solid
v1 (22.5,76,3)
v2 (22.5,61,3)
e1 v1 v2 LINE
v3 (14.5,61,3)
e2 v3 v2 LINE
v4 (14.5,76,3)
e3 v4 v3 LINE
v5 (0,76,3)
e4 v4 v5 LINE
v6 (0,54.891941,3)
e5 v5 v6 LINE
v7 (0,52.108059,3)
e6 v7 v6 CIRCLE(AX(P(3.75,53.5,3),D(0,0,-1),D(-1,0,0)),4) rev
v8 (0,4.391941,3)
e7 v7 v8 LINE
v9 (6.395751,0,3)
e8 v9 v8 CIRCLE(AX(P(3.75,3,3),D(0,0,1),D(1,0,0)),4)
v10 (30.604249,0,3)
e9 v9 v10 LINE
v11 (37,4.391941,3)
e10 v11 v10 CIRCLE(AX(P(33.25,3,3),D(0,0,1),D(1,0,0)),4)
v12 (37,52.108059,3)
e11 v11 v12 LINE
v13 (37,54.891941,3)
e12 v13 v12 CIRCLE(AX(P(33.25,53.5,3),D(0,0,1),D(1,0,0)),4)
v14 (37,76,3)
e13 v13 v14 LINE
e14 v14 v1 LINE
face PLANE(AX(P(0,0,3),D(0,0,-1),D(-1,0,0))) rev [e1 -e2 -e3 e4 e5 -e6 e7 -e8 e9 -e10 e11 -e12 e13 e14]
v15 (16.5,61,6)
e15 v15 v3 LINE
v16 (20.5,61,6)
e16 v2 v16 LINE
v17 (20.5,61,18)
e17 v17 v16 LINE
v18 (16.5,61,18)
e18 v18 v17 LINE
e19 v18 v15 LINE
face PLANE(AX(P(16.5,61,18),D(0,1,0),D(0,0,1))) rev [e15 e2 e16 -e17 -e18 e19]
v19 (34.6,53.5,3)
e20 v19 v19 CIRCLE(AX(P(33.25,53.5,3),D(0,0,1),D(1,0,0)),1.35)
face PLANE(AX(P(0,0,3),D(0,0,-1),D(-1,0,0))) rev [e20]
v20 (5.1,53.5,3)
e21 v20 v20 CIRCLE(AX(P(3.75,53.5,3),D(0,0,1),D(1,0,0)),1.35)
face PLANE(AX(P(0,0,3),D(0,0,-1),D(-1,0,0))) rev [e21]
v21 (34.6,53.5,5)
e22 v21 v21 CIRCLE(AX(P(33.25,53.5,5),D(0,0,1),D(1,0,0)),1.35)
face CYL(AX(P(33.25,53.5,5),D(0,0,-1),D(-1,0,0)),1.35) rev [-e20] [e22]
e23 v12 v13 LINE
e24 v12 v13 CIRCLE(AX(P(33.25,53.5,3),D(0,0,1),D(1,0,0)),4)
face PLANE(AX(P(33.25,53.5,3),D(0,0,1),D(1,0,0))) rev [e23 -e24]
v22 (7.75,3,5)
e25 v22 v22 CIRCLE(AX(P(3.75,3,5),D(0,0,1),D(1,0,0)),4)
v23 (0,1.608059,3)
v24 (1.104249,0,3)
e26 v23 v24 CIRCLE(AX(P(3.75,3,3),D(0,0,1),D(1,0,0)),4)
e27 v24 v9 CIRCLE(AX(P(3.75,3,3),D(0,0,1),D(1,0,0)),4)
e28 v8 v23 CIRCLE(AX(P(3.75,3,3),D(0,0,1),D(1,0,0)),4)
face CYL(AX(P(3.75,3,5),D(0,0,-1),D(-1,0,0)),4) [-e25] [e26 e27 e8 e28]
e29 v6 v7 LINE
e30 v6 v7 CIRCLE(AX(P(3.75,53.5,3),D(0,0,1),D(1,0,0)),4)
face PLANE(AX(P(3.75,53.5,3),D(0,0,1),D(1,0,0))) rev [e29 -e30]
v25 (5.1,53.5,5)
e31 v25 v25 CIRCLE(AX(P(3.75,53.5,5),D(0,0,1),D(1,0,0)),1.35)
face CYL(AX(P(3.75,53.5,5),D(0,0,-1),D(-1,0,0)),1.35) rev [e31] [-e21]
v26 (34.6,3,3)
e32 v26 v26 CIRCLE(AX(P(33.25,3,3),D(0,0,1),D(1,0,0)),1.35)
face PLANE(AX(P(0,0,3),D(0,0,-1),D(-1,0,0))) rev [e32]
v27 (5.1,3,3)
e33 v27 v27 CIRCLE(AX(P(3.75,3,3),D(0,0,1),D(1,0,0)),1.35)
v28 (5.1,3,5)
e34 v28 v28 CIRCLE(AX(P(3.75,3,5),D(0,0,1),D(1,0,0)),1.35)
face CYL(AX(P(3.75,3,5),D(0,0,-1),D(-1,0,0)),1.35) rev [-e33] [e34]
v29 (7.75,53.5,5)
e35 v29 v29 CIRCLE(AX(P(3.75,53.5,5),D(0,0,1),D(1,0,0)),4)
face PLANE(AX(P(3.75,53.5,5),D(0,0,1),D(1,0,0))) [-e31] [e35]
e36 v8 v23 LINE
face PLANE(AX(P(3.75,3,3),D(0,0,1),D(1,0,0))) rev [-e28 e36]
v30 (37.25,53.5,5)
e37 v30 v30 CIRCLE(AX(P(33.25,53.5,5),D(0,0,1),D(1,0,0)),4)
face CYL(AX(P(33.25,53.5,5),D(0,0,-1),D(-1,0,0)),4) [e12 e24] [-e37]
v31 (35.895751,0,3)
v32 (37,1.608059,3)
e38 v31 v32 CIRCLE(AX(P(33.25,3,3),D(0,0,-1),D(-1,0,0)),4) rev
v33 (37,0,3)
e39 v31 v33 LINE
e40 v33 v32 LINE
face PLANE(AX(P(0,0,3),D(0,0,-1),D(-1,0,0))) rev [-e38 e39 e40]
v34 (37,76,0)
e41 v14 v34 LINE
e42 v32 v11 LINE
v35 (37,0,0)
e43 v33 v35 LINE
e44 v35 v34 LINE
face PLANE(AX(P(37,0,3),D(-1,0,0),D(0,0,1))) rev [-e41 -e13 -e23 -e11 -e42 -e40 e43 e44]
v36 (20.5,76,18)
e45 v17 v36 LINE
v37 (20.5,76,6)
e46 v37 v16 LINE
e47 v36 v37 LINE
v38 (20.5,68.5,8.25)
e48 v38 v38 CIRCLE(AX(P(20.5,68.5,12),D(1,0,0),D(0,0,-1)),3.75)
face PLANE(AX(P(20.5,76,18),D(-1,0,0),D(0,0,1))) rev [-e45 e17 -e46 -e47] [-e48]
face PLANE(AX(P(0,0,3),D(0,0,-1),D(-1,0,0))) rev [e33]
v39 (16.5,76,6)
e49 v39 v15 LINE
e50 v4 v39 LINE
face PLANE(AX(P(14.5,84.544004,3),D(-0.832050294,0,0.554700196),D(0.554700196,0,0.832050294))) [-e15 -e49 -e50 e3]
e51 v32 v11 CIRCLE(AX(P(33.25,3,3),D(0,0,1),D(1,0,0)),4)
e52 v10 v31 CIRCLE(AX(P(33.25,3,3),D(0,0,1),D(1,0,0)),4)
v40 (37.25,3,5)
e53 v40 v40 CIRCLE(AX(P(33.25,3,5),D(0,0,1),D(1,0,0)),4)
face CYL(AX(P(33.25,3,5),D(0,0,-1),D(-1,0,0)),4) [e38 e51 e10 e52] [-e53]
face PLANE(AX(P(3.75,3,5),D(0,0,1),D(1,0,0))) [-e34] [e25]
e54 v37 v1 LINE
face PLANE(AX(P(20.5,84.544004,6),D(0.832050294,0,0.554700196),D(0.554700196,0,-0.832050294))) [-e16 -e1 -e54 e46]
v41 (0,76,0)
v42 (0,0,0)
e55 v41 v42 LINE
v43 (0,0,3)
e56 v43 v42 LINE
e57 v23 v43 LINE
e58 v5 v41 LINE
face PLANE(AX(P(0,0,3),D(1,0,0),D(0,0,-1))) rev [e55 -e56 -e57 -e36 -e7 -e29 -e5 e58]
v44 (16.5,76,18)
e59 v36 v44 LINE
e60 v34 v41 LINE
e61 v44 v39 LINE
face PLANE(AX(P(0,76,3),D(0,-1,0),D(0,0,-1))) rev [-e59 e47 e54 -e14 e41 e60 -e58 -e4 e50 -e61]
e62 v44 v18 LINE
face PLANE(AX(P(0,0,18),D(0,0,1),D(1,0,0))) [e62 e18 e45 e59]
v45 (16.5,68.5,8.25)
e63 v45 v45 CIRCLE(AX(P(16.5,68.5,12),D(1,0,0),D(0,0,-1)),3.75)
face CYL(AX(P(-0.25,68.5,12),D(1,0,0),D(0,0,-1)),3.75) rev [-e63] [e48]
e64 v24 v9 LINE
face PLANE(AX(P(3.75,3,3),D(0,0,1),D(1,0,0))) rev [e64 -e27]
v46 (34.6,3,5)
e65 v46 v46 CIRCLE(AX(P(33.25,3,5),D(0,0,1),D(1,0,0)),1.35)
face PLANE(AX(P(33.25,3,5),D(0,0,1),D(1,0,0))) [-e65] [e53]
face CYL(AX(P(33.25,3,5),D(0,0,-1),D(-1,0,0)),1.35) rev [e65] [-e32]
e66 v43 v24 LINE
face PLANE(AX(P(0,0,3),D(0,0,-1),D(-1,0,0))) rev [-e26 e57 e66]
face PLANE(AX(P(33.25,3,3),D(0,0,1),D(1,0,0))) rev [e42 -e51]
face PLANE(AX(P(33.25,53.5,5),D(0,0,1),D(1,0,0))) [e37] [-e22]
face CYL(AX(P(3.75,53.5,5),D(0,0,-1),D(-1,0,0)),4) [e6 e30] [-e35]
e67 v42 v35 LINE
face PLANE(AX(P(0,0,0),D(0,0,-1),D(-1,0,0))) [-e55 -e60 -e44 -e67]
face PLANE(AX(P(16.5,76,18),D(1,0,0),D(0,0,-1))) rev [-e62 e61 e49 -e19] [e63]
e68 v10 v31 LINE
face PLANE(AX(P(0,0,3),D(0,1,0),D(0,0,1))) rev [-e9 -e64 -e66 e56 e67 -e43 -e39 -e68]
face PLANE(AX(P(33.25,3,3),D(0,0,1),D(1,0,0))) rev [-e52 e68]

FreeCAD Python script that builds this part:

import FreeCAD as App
import Part
import Sketcher
from FreeCAD import Vector
Q = App.Units.Quantity


def add_polygon(sketch, points):
    """Adds a closed chain of lines whose ends are joined by coincident constraints."""
    first, n = sketch.GeometryCount, len(points)
    for a, b in zip(points, points[1:] + points[:1]):
        sketch.addGeometry(Part.LineSegment(App.Vector(*a, 0), App.Vector(*b, 0)), False)
    for i in range(n):
        sketch.addConstraint(Sketcher.Constraint("Coincident", first + i, 2, first + (i + 1) % n, 1))

doc = App.newDocument("Part")
body = doc.addObject("PartDesign::Body", "Body")

sketch1 = doc.addObject("Sketcher::SketchObject", "Sketch")
body.addObject(sketch1)
sketch1.AttachmentSupport = (doc.XY_Plane, [""])
sketch1.MapMode = "FlatFace"
add_polygon(sketch1, [(0, 76), (0, 0), (37, 0), (37, 76)])
sketch1.addConstraint(Sketcher.Constraint("Vertical", 0))
sketch1.addConstraint(Sketcher.Constraint("Horizontal", 1))
sketch1.addConstraint(Sketcher.Constraint("Vertical", 2))
sketch1.addConstraint(Sketcher.Constraint("Horizontal", 3))
sketch1.addConstraint(Sketcher.Constraint("Coincident", 0, 2, -1, 1))
sketch1.addConstraint(Sketcher.Constraint("DistanceX", 1, 1, 1, 2, Q("37 mm")))
sketch1.addConstraint(Sketcher.Constraint("DistanceY", 0, 2, 0, 1, Q("76 mm")))
pad1 = doc.addObject("PartDesign::Pad", "Pad")
body.addObject(pad1)
pad1.Profile = sketch1
pad1.Length = 3

sketch2 = doc.addObject("Sketcher::SketchObject", "Sketch001")
body.addObject(sketch2)
sketch2.AttachmentSupport = (doc.XY_Plane, [""])
sketch2.MapMode = "FlatFace"
sketch2.AttachmentOffset = App.Placement(Vector(0, 0, 3), App.Rotation())
sketch2.addGeometry(Part.Circle(Vector(3.75, 3, 0), Vector(0, 0, 1), 4), False)
sketch2.addGeometry(Part.Circle(Vector(3.75, 3, 0), Vector(0, 0, 1), 1.35), False)
sketch2.addGeometry(Part.Circle(Vector(33.25, 3, 0), Vector(0, 0, 1), 4), False)
sketch2.addGeometry(Part.Circle(Vector(33.25, 3, 0), Vector(0, 0, 1), 1.35), False)
sketch2.addGeometry(Part.Circle(Vector(33.25, 53.5, 0), Vector(0, 0, 1), 4), False)
sketch2.addGeometry(Part.Circle(Vector(33.25, 53.5, 0), Vector(0, 0, 1), 1.35), False)
sketch2.addGeometry(Part.Circle(Vector(3.75, 53.5, 0), Vector(0, 0, 1), 4), False)
sketch2.addGeometry(Part.Circle(Vector(3.75, 53.5, 0), Vector(0, 0, 1), 1.35), False)
sketch2.addConstraint(Sketcher.Constraint("Coincident", 1, 3, 0, 3))
sketch2.addConstraint(Sketcher.Constraint("Coincident", 3, 3, 2, 3))
sketch2.addConstraint(Sketcher.Constraint("Coincident", 5, 3, 4, 3))
sketch2.addConstraint(Sketcher.Constraint("Coincident", 7, 3, 6, 3))
sketch2.addConstraint(Sketcher.Constraint("Equal", 0, 2))
sketch2.addConstraint(Sketcher.Constraint("Equal", 1, 3))
sketch2.addConstraint(Sketcher.Constraint("Equal", 2, 4))
sketch2.addConstraint(Sketcher.Constraint("Equal", 3, 5))
sketch2.addConstraint(Sketcher.Constraint("Equal", 4, 6))
sketch2.addConstraint(Sketcher.Constraint("Equal", 5, 7))
sketch2.addConstraint(Sketcher.Constraint("Horizontal", 1, 3, 2, 3))
sketch2.addConstraint(Sketcher.Constraint("Horizontal", 5, 3, 6, 3))
sketch2.addConstraint(Sketcher.Constraint("Vertical", 3, 3, 4, 3))
sketch2.addConstraint(Sketcher.Constraint("Vertical", 1, 3, 6, 3))
sketch2.addConstraint(Sketcher.Constraint("Diameter", 0, Q("8 mm")))
sketch2.addConstraint(Sketcher.Constraint("Diameter", 1, Q("2.7 mm")))
sketch2.addConstraint(Sketcher.Constraint("DistanceY", -1, 1, 0, 3, Q("3 mm")))
sketch2.addConstraint(Sketcher.Constraint("DistanceY", -1, 1, 4, 3, Q("53.5 mm")))
sketch2.addConstraint(Sketcher.Constraint("DistanceX", 0, 3, 2, 3, Q("29.5 mm")))
sketch2.addConstraint(Sketcher.Constraint("DistanceX", -1, 1, 0, 3, Q("3.75 mm")))
pad2 = doc.addObject("PartDesign::Pad", "Pad001")
body.addObject(pad2)
pad2.Profile = sketch2
pad2.Length = 2

sketch3 = doc.addObject("Sketcher::SketchObject", "Sketch002")
body.addObject(sketch3)
sketch3.AttachmentSupport = (doc.XY_Plane, [""])
sketch3.MapMode = "FlatFace"
sketch3.AttachmentOffset = App.Placement(Vector(0, 0, 3), App.Rotation())
add_polygon(sketch3, [(16.5, 76), (16.5, 61), (20.5, 61), (20.5, 76)])
sketch3.addConstraint(Sketcher.Constraint("Vertical", 0))
sketch3.addConstraint(Sketcher.Constraint("Horizontal", 1))
sketch3.addConstraint(Sketcher.Constraint("Vertical", 2))
sketch3.addConstraint(Sketcher.Constraint("Horizontal", 3))
sketch3.addConstraint(Sketcher.Constraint("DistanceX", 1, 1, 1, 2, Q("4 mm")))
sketch3.addConstraint(Sketcher.Constraint("DistanceY", 0, 2, 0, 1, Q("15 mm")))
sketch3.addConstraint(Sketcher.Constraint("DistanceY", -1, 1, 0, 2, Q("61 mm")))
sketch3.addConstraint(Sketcher.Constraint("DistanceX", -1, 1, 0, 2, Q("16.5 mm")))
pad3 = doc.addObject("PartDesign::Pad", "Pad002")
body.addObject(pad3)
pad3.Profile = sketch3
pad3.Length = 15

sketch4 = doc.addObject("Sketcher::SketchObject", "Sketch003")
body.addObject(sketch4)
sketch4.AttachmentSupport = (doc.YZ_Plane, [""])
sketch4.MapMode = "FlatFace"
sketch4.AttachmentOffset = App.Placement(Vector(0, 0, 20.5), App.Rotation())
sketch4.addGeometry(Part.Circle(Vector(68.5, 12, 0), Vector(0, 0, 1), 3.75), False)
sketch4.addConstraint(Sketcher.Constraint("Diameter", 0, Q("7.5 mm")))
sketch4.addConstraint(Sketcher.Constraint("DistanceY", -1, 1, 0, 3, Q("12 mm")))
sketch4.addConstraint(Sketcher.Constraint("DistanceX", -1, 1, 0, 3, Q("68.5 mm")))
pocket1 = doc.addObject("PartDesign::Pocket", "Pocket")
body.addObject(pocket1)
pocket1.Profile = sketch4
pocket1.Type = "ThroughAll"

sketch5 = doc.addObject("Sketcher::SketchObject", "Sketch004")
body.addObject(sketch5)
sketch5.AttachmentSupport = (doc.XZ_Plane, [""])
sketch5.MapMode = "FlatFace"
sketch5.AttachmentOffset = App.Placement(Vector(0, 0, -61), App.Rotation())
add_polygon(sketch5, [(14.5, 3), (22.5, 3), (20.5, 6), (16.5, 6)])
sketch5.addConstraint(Sketcher.Constraint("Horizontal", 0))
sketch5.addConstraint(Sketcher.Constraint("Horizontal", 2))
sketch5.addConstraint(Sketcher.Constraint("Equal", 1, 3))
sketch5.addConstraint(Sketcher.Constraint("DistanceX", 0, 1, 0, 2, Q("8 mm")))
sketch5.addConstraint(Sketcher.Constraint("DistanceX", 2, 2, 2, 1, Q("4 mm")))
sketch5.addConstraint(Sketcher.Constraint("DistanceY", -1, 1, 0, 2, Q("3 mm")))
sketch5.addConstraint(Sketcher.Constraint("DistanceY", -1, 1, 1, 2, Q("6 mm")))
sketch5.addConstraint(Sketcher.Constraint("DistanceX", -1, 1, 0, 2, Q("22.5 mm")))
pad4 = doc.addObject("PartDesign::Pad", "Pad003")
body.addObject(pad4)
pad4.Profile = sketch5
pad4.Length = 15
pad4.Reversed = True

doc.recompute()
